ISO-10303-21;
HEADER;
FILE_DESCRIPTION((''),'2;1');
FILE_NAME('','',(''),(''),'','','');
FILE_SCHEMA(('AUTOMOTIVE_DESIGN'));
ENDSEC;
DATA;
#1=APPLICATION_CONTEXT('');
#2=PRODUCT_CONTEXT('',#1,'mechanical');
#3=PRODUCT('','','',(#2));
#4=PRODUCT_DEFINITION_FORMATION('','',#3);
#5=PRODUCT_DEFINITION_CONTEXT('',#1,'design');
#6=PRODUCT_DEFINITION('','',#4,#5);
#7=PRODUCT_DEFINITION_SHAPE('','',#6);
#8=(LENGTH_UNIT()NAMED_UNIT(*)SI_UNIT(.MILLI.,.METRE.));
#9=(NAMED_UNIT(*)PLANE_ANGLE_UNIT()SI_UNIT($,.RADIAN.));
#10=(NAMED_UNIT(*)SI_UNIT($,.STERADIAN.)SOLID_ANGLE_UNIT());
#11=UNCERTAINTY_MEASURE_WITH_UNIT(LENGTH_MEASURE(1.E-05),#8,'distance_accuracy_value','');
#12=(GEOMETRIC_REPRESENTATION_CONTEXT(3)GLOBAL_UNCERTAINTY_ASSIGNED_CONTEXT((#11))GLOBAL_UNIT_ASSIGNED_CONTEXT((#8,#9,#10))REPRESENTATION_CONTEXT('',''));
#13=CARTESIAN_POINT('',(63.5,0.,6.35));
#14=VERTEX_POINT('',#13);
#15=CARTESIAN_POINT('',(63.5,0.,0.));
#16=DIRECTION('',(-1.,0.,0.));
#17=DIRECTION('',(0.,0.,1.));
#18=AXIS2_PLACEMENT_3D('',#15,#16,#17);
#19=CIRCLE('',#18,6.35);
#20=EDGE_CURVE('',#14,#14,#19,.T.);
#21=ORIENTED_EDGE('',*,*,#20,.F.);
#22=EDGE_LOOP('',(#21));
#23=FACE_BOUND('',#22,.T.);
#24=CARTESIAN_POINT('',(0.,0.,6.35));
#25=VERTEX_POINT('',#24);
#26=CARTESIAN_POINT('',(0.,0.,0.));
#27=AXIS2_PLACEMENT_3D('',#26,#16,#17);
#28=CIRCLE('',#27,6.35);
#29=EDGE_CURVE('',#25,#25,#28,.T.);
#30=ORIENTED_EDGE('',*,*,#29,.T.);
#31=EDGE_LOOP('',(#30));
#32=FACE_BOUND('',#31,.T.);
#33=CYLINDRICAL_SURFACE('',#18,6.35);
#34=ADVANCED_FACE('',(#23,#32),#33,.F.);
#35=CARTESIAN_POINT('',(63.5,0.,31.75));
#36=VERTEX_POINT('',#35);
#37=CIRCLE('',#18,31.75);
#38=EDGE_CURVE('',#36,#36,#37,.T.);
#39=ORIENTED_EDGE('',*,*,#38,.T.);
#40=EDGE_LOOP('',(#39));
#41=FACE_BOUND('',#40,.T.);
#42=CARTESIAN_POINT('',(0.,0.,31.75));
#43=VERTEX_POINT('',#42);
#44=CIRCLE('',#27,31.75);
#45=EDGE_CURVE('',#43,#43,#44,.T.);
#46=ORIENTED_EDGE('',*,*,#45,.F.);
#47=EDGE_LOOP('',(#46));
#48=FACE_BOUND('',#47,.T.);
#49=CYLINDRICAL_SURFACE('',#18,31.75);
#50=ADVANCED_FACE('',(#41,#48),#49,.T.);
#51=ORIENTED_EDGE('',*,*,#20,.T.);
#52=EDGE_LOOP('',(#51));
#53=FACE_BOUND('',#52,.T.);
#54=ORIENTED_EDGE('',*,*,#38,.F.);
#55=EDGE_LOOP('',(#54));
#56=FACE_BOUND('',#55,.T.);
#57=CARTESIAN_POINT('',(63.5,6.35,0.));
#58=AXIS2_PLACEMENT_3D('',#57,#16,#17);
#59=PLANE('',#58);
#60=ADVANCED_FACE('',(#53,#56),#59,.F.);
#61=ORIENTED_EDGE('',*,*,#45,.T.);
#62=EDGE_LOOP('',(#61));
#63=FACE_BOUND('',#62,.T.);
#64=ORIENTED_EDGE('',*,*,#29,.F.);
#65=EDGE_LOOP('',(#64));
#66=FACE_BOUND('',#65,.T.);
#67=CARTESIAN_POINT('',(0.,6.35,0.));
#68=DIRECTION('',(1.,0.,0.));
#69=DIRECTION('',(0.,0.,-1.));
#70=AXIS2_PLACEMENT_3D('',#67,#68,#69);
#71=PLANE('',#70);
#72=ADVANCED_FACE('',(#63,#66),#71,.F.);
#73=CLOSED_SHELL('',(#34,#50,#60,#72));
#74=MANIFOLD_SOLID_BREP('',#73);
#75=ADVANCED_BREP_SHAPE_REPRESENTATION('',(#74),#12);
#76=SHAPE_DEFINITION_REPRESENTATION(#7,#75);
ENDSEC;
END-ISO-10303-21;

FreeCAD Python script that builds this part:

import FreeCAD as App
import Part
import Sketcher

V = App.Vector
Q = App.Units.Quantity


def add_polygon(sketch, points):
    """Adds a closed chain of lines whose ends are joined by coincident constraints."""
    first, n = sketch.GeometryCount, len(points)
    for a, b in zip(points, points[1:] + points[:1]):
        sketch.addGeometry(Part.LineSegment(App.Vector(*a, 0), App.Vector(*b, 0)), False)
    for i in range(n):
        sketch.addConstraint(Sketcher.Constraint("Coincident", first + i, 2, first + (i + 1) % n, 1))

doc = App.newDocument("Part")
body = doc.addObject("PartDesign::Body", "Body")

sketch1 = body.newObject("Sketcher::SketchObject", "Sketch")
sketch1.AttachmentSupport = (doc.getObject("XY_Plane"), [""])
sketch1.MapMode = "FlatFace"
add_polygon(sketch1, [(0, 32), (0, 6), (64, 6), (64, 32)])
sketch1.addConstraint([
    Sketcher.Constraint("Vertical", 0),
    Sketcher.Constraint("Horizontal", 1),
    Sketcher.Constraint("Vertical", 2),
    Sketcher.Constraint("Horizontal", 3),
    Sketcher.Constraint("PointOnObject", 0, 2, -2),
    Sketcher.Constraint("DistanceY", 0, 2, 0, 1, Q("1 in")),
    Sketcher.Constraint("DistanceX", 1, 1, 1, 2, Q("2.5 in")),
    Sketcher.Constraint("DistanceY", -1, 1, 0, 2, Q("0.25 in")),
])
revolution = body.newObject("PartDesign::Revolution", "Revolution")
revolution.Profile = sketch1
revolution.ReferenceAxis = (sketch1, ["H_Axis"])
revolution.Angle = 360

doc.recompute()
